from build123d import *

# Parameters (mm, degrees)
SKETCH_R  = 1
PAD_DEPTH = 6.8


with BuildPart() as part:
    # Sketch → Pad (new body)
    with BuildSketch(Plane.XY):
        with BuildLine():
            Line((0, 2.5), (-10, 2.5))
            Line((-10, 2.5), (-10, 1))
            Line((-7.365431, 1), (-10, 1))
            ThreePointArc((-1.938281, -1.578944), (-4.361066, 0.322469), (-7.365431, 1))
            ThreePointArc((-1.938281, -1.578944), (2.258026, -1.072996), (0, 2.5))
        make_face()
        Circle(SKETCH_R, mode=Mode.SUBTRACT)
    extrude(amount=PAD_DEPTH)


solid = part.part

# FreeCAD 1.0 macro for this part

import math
import FreeCAD as App
import Part
import Sketcher

doc = App.newDocument("Part")
body = doc.addObject("PartDesign::Body", "Body")

# Sketch on XY plane
sketch1 = doc.addObject("Sketcher::SketchObject", "Sketch")
body.addObject(sketch1)
sketch1.AttachmentSupport = (doc.XY_Plane, [""])
sketch1.MapMode = "FlatFace"
sketch1.addGeometry(Part.LineSegment(App.Vector(0, 2.5, 0), App.Vector(-10, 2.5, 0)), False)
sketch1.addGeometry(Part.LineSegment(App.Vector(-10, 2.5, 0), App.Vector(-10, 1, 0)), False)
sketch1.addGeometry(Part.LineSegment(App.Vector(-10, 1, 0), App.Vector(-7.4, 1, 0)), False)
sketch1.addGeometry(Part.ArcOfCircle(Part.Circle(App.Vector(-7.4, -6, 0), App.Vector(0, 0, 1), 7), math.radians(39), math.radians(90)), False)
sketch1.addGeometry(Part.ArcOfCircle(Part.Circle(App.Vector(0, 0, 0), App.Vector(0, 0, 1), 2.5), math.radians(-141), math.radians(90)), False)
sketch1.addGeometry(Part.Circle(App.Vector(0, 0, 0), App.Vector(0, 0, 1), 1), False)
sketch1.addConstraint(Sketcher.Constraint("Coincident", 0, 2, 1, 1))
sketch1.addConstraint(Sketcher.Constraint("Coincident", 1, 2, 2, 1))
sketch1.addConstraint(Sketcher.Constraint("Coincident", 2, 2, 3, 2))
sketch1.addConstraint(Sketcher.Constraint("Coincident", 3, 1, 4, 1))
sketch1.addConstraint(Sketcher.Constraint("Tangent", 4, 2, 0, 1))
sketch1.addConstraint(Sketcher.Constraint("Horizontal", 0))
sketch1.addConstraint(Sketcher.Constraint("Vertical", 1))
sketch1.addConstraint(Sketcher.Constraint("Horizontal", 2))
sketch1.addConstraint(Sketcher.Constraint("Coincident", 4, 3, -1, 1))
sketch1.addConstraint(Sketcher.Constraint("Coincident", 5, 3, -1, 1))
sketch1.addConstraint(Sketcher.Constraint("Diameter", 5, 2.0))
sketch1.addConstraint(Sketcher.Constraint("Radius", 4, 2.5))
sketch1.addConstraint(Sketcher.Constraint("DistanceX", 0, 2, 0, 1, 10.0))
sketch1.addConstraint(Sketcher.Constraint("DistanceY", 1, 2, 1, 1, 1.5))
sketch1.addConstraint(Sketcher.Constraint("Radius", 3, 7.000005))
sketch1.addConstraint(Sketcher.Constraint("DistanceX", 2, 1, 2, 2, 2.634569))
sketch1.addConstraint(Sketcher.Constraint("DistanceX", 3, 1, -1, 1, 1.938281))
pad1 = doc.addObject("PartDesign::Pad", "Pad")
body.addObject(pad1)
pad1.Profile = sketch1
pad1.Length = 6.8

doc.recompute()
